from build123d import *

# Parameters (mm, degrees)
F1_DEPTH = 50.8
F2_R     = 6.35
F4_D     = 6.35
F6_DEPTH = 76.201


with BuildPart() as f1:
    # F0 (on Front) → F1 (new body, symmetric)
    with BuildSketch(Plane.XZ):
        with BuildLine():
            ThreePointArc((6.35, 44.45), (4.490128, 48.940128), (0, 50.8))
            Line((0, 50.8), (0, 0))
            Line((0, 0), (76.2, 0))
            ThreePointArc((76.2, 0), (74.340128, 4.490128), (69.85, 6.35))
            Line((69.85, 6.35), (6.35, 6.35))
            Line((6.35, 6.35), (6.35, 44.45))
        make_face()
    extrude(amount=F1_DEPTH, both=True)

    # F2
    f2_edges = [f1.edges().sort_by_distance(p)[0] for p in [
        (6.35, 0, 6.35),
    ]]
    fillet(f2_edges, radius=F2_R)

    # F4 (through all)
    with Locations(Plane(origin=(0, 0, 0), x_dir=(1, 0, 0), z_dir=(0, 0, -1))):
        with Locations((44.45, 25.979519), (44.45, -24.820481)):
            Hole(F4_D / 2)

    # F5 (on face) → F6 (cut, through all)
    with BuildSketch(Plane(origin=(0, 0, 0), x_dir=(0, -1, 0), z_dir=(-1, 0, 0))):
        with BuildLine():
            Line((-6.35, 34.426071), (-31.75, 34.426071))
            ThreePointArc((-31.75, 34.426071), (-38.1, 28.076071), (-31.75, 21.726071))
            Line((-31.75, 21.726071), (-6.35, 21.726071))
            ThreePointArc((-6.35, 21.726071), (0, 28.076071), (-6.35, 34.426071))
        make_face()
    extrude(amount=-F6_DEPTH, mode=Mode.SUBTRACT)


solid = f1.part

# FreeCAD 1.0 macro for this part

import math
import FreeCAD as App
import Part
import Sketcher
from FreeCAD import Vector
Q = App.Units.Quantity


def edges_at(feature, points):
    """Names of the edges that pass closest to the given points."""
    edges = feature.Shape.Edges
    near = lambda p: min(range(len(edges)), key=lambda i: edges[i].distToShape(Part.Vertex(*p))[0])
    return sorted({f"Edge{near(p) + 1}" for p in points})

doc = App.newDocument("Part")
body = doc.addObject("PartDesign::Body", "Body")

# Sketch on XZ plane
sketch1 = body.newObject("Sketcher::SketchObject", "Sketch")
sketch1.AttachmentSupport = (doc.getObject("XZ_Plane"), [""])
sketch1.MapMode = "FlatFace"
sketch1.addGeometry(Part.ArcOfCircle(Part.Circle(Vector(0, 44, 0), Vector(0, 0, 1), 6), math.radians(0), math.radians(90)), False)
sketch1.addGeometry(Part.LineSegment(Vector(0, 51, 0), Vector(0, 0, 0)), False)
sketch1.addGeometry(Part.LineSegment(Vector(0, 0, 0), Vector(76, 0, 0)), False)
sketch1.addGeometry(Part.ArcOfCircle(Part.Circle(Vector(70, 0, 0), Vector(0, 0, 1), 6), math.radians(0), math.radians(90)), False)
sketch1.addGeometry(Part.LineSegment(Vector(70, 6, 0), Vector(6, 6, 0)), False)
sketch1.addGeometry(Part.LineSegment(Vector(6, 6, 0), Vector(6, 44, 0)), False)
sketch1.addConstraint(Sketcher.Constraint("Coincident", 0, 2, 1, 1))
sketch1.addConstraint(Sketcher.Constraint("Coincident", 1, 2, 2, 1))
sketch1.addConstraint(Sketcher.Constraint("Coincident", 2, 2, 3, 1))
sketch1.addConstraint(Sketcher.Constraint("Tangent", 3, 2, 4, 1))
sketch1.addConstraint(Sketcher.Constraint("Coincident", 4, 2, 5, 1))
sketch1.addConstraint(Sketcher.Constraint("Tangent", 5, 2, 0, 1))
sketch1.addConstraint(Sketcher.Constraint("Vertical", 1))
sketch1.addConstraint(Sketcher.Constraint("Horizontal", 2))
sketch1.addConstraint(Sketcher.Constraint("Horizontal", 4))
sketch1.addConstraint(Sketcher.Constraint("Vertical", 5))
sketch1.addConstraint(Sketcher.Constraint("Coincident", 1, 2, -1, 1))
sketch1.addConstraint(Sketcher.Constraint("Equal", 0, 3))
sketch1.addConstraint(Sketcher.Constraint("PointOnObject", 0, 3, -2))
sketch1.addConstraint(Sketcher.Constraint("PointOnObject", 3, 3, -1))
sketch1.addConstraint(Sketcher.Constraint("DistanceX", 2, 1, 2, 2, Q("3 in")))
sketch1.addConstraint(Sketcher.Constraint("DistanceY", 1, 2, 1, 1, Q("2 in")))
sketch1.addConstraint(Sketcher.Constraint("Radius", 0, Q("0.25 in")))
pad1 = body.newObject("PartDesign::Pad", "Pad")
pad1.Profile = sketch1
pad1.Length = Q("4 in")
pad1.Midplane = True
doc.recompute()

fillet = body.newObject("PartDesign::Fillet", "Fillet")
fillet.Base = (pad1, edges_at(pad1, [(6.35, 0, 6.35)]))
fillet.Radius = Q("0.25 in")

# Sketch on XY plane
sketch2 = body.newObject("Sketcher::SketchObject", "Sketch001")
sketch2.AttachmentSupport = (doc.getObject("XY_Plane"), [""])
sketch2.MapMode = "FlatFace"
sketch2.addGeometry(Part.Circle(Vector(44.5, -26, 0), Vector(0, 0, 1), 3.2), False)
sketch2.addGeometry(Part.Circle(Vector(44.5, 24.8, 0), Vector(0, 0, 1), 3.2), False)
sketch2.addConstraint(Sketcher.Constraint("Equal", 0, 1))
sketch2.addConstraint(Sketcher.Constraint("Vertical", 0, 3, 1, 3))
sketch2.addConstraint(Sketcher.Constraint("Diameter", 0, Q("0.25 in")))
sketch2.addConstraint(Sketcher.Constraint("DistanceY", 0, 3, 1, 3, Q("2 in")))
sketch2.addConstraint(Sketcher.Constraint("DistanceX", -1, 1, 0, 3, Q("1.75 in")))
sketch2.addConstraint(Sketcher.Constraint("DistanceY", 0, 3, -1, 1, Q("25.979519 mm")))
doc.recompute()
hole = body.newObject("PartDesign::Hole", "Hole")
hole.Profile = sketch2
hole.ThreadType = "None"
hole.Diameter = Q("0.25 in")
hole.DepthType = "ThroughAll"
hole.Reversed = True

# Sketch on YZ plane
sketch3 = body.newObject("Sketcher::SketchObject", "Sketch002")
sketch3.AttachmentSupport = (doc.getObject("YZ_Plane"), [""])
sketch3.MapMode = "FlatFace"
sketch3.addGeometry(Part.LineSegment(Vector(6, 34, 0), Vector(32, 34, 0)), False)
sketch3.addGeometry(Part.ArcOfCircle(Part.Circle(Vector(32, 28, 0), Vector(0, 0, 1), 6), math.radians(-90), math.radians(90)), False)
sketch3.addGeometry(Part.LineSegment(Vector(32, 22, 0), Vector(6, 22, 0)), False)
sketch3.addGeometry(Part.ArcOfCircle(Part.Circle(Vector(6, 28, 0), Vector(0, 0, 1), 6), math.radians(90), math.radians(270)), False)
sketch3.addConstraint(Sketcher.Constraint("Tangent", 0, 2, 1, 2))
sketch3.addConstraint(Sketcher.Constraint("Tangent", 1, 1, 2, 1))
sketch3.addConstraint(Sketcher.Constraint("Tangent", 2, 2, 3, 2))
sketch3.addConstraint(Sketcher.Constraint("Tangent", 3, 1, 0, 1))
sketch3.addConstraint(Sketcher.Constraint("Horizontal", 0))
sketch3.addConstraint(Sketcher.Constraint("Horizontal", 2))
sketch3.addConstraint(Sketcher.Constraint("DistanceX", 0, 1, 0, 2, Q("1 in")))
sketch3.addConstraint(Sketcher.Constraint("Radius", 1, Q("0.25 in")))
sketch3.addConstraint(Sketcher.Constraint("DistanceX", -1, 1, 1, 3, Q("1.25 in")))
sketch3.addConstraint(Sketcher.Constraint("DistanceY", -1, 1, 1, 3, Q("28.076071 mm")))
pocket1 = body.newObject("PartDesign::Pocket", "Pocket")
pocket1.Profile = sketch3
pocket1.Type = "ThroughAll"
pocket1.Reversed = True

doc.recompute()
